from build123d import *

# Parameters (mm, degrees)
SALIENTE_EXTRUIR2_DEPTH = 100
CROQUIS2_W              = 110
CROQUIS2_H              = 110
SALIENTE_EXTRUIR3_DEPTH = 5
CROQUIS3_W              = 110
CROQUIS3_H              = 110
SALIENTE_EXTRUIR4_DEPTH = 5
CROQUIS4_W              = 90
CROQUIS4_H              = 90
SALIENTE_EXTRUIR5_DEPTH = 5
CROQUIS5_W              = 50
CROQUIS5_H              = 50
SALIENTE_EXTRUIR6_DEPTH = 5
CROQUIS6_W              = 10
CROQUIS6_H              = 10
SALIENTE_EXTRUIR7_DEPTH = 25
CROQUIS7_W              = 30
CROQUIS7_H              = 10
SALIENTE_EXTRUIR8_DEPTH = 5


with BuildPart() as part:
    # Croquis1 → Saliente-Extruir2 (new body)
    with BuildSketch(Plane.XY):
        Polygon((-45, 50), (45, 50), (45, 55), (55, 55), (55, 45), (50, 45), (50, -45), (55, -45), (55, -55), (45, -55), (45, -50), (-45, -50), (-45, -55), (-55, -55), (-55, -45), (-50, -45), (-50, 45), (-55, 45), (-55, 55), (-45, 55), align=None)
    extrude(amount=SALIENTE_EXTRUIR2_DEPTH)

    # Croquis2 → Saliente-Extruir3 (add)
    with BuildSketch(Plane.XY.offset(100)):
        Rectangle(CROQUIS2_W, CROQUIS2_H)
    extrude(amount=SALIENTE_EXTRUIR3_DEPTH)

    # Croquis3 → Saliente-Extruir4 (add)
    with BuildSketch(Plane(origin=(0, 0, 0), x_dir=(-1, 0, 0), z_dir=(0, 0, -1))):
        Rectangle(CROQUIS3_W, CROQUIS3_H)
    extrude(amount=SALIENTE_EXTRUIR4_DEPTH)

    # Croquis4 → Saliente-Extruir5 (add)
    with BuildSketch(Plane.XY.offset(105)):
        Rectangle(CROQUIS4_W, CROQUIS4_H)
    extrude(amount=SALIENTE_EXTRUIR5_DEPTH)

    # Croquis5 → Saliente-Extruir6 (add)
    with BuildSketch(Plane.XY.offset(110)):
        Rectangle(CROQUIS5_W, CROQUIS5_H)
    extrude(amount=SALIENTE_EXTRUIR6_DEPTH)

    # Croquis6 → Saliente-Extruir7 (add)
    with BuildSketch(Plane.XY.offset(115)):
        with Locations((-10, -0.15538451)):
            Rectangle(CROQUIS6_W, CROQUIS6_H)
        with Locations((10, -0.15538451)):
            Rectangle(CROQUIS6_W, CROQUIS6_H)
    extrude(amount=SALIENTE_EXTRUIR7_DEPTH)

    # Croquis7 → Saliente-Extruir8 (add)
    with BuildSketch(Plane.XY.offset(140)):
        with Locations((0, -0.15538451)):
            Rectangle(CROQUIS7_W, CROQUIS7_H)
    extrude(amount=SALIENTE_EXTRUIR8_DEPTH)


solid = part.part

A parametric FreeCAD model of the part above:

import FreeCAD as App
import Part
import Sketcher

V = App.Vector
Q = App.Units.Quantity

doc = App.newDocument("Part")
body = doc.addObject("PartDesign::Body", "Body")

# Sketch on XY plane
sketch1 = body.newObject("Sketcher::SketchObject", "Sketch")
sketch1.AttachmentSupport = (doc.getObject("XY_Plane"), [""])
sketch1.MapMode = "FlatFace"
sketch1.addGeometry(Part.LineSegment(V(45, 50, 0), V(-45, 50, 0)), False)
sketch1.addGeometry(Part.LineSegment(V(-45, 50, 0), V(-45, 55, 0)), False)
sketch1.addGeometry(Part.LineSegment(V(-45, 55, 0), V(-55, 55, 0)), False)
sketch1.addGeometry(Part.LineSegment(V(-55, 55, 0), V(-55, 45, 0)), False)
sketch1.addGeometry(Part.LineSegment(V(-55, 45, 0), V(-50, 45, 0)), False)
sketch1.addGeometry(Part.LineSegment(V(-50, 45, 0), V(-50, -45, 0)), False)
sketch1.addGeometry(Part.LineSegment(V(-50, -45, 0), V(-55, -45, 0)), False)
sketch1.addGeometry(Part.LineSegment(V(-55, -45, 0), V(-55, -55, 0)), False)
sketch1.addGeometry(Part.LineSegment(V(-55, -55, 0), V(-45, -55, 0)), False)
sketch1.addGeometry(Part.LineSegment(V(-45, -55, 0), V(-45, -50, 0)), False)
sketch1.addGeometry(Part.LineSegment(V(-45, -50, 0), V(45, -50, 0)), False)
sketch1.addGeometry(Part.LineSegment(V(45, -50, 0), V(45, -55, 0)), False)
sketch1.addGeometry(Part.LineSegment(V(45, -55, 0), V(55, -55, 0)), False)
sketch1.addGeometry(Part.LineSegment(V(55, -55, 0), V(55, -45, 0)), False)
sketch1.addGeometry(Part.LineSegment(V(55, -45, 0), V(50, -45, 0)), False)
sketch1.addGeometry(Part.LineSegment(V(50, -45, 0), V(50, 45, 0)), False)
sketch1.addGeometry(Part.LineSegment(V(50, 45, 0), V(55, 45, 0)), False)
sketch1.addGeometry(Part.LineSegment(V(55, 45, 0), V(55, 55, 0)), False)
sketch1.addGeometry(Part.LineSegment(V(55, 55, 0), V(45, 55, 0)), False)
sketch1.addGeometry(Part.LineSegment(V(45, 55, 0), V(45, 50, 0)), False)
sketch1.addConstraint(Sketcher.Constraint("Coincident", 0, 2, 1, 1))
sketch1.addConstraint(Sketcher.Constraint("Coincident", 1, 2, 2, 1))
sketch1.addConstraint(Sketcher.Constraint("Coincident", 2, 2, 3, 1))
sketch1.addConstraint(Sketcher.Constraint("Coincident", 3, 2, 4, 1))
sketch1.addConstraint(Sketcher.Constraint("Coincident", 4, 2, 5, 1))
sketch1.addConstraint(Sketcher.Constraint("Coincident", 5, 2, 6, 1))
sketch1.addConstraint(Sketcher.Constraint("Coincident", 6, 2, 7, 1))
sketch1.addConstraint(Sketcher.Constraint("Coincident", 7, 2, 8, 1))
sketch1.addConstraint(Sketcher.Constraint("Coincident", 8, 2, 9, 1))
sketch1.addConstraint(Sketcher.Constraint("Coincident", 9, 2, 10, 1))
sketch1.addConstraint(Sketcher.Constraint("Coincident", 10, 2, 11, 1))
sketch1.addConstraint(Sketcher.Constraint("Coincident", 11, 2, 12, 1))
sketch1.addConstraint(Sketcher.Constraint("Coincident", 12, 2, 13, 1))
sketch1.addConstraint(Sketcher.Constraint("Coincident", 13, 2, 14, 1))
sketch1.addConstraint(Sketcher.Constraint("Coincident", 14, 2, 15, 1))
sketch1.addConstraint(Sketcher.Constraint("Coincident", 15, 2, 16, 1))
sketch1.addConstraint(Sketcher.Constraint("Coincident", 16, 2, 17, 1))
sketch1.addConstraint(Sketcher.Constraint("Coincident", 17, 2, 18, 1))
sketch1.addConstraint(Sketcher.Constraint("Coincident", 18, 2, 19, 1))
sketch1.addConstraint(Sketcher.Constraint("Coincident", 19, 2, 0, 1))
sketch1.addConstraint(Sketcher.Constraint("Horizontal", 0))
sketch1.addConstraint(Sketcher.Constraint("Vertical", 1))
sketch1.addConstraint(Sketcher.Constraint("Horizontal", 2))
sketch1.addConstraint(Sketcher.Constraint("Vertical", 3))
sketch1.addConstraint(Sketcher.Constraint("Horizontal", 4))
sketch1.addConstraint(Sketcher.Constraint("Vertical", 5))
sketch1.addConstraint(Sketcher.Constraint("Horizontal", 6))
sketch1.addConstraint(Sketcher.Constraint("Vertical", 7))
sketch1.addConstraint(Sketcher.Constraint("Horizontal", 8))
sketch1.addConstraint(Sketcher.Constraint("Vertical", 9))
sketch1.addConstraint(Sketcher.Constraint("Horizontal", 10))
sketch1.addConstraint(Sketcher.Constraint("Vertical", 11))
sketch1.addConstraint(Sketcher.Constraint("Horizontal", 12))
sketch1.addConstraint(Sketcher.Constraint("Vertical", 13))
sketch1.addConstraint(Sketcher.Constraint("Horizontal", 14))
sketch1.addConstraint(Sketcher.Constraint("Vertical", 15))
sketch1.addConstraint(Sketcher.Constraint("Horizontal", 16))
sketch1.addConstraint(Sketcher.Constraint("Vertical", 17))
sketch1.addConstraint(Sketcher.Constraint("Horizontal", 18))
sketch1.addConstraint(Sketcher.Constraint("Vertical", 19))
sketch1.addConstraint(Sketcher.Constraint("Symmetric", 0, 2, 10, 2, -1, 1))
sketch1.addConstraint(Sketcher.Constraint("Symmetric", 2, 2, 12, 2, -1, 1))
sketch1.addConstraint(Sketcher.Constraint("Symmetric", 4, 2, 14, 2, -1, 1))
sketch1.addConstraint(Sketcher.Constraint("Symmetric", 6, 2, 16, 2, -1, 1))
sketch1.addConstraint(Sketcher.Constraint("Symmetric", 8, 2, 18, 2, -1, 1))
sketch1.addConstraint(Sketcher.Constraint("Symmetric", 8, 2, 11, 2, -2))
sketch1.addConstraint(Sketcher.Constraint("Symmetric", 6, 2, 13, 2, -2))
sketch1.addConstraint(Sketcher.Constraint("Equal", 16, 1))
sketch1.addConstraint(Sketcher.Constraint("Equal", 18, 3))
sketch1.addConstraint(Sketcher.Constraint("Equal", 10, 5))
sketch1.addConstraint(Sketcher.Constraint("DistanceX", 0, 2, 0, 1, Q("90 mm")))
sketch1.addConstraint(Sketcher.Constraint("DistanceX", 2, 2, 2, 1, Q("10 mm")))
sketch1.addConstraint(Sketcher.Constraint("DistanceX", 4, 1, 4, 2, Q("5 mm")))
pad1 = body.newObject("PartDesign::Pad", "Pad")
pad1.Profile = sketch1
pad1.Length = 100

# Sketch on XY plane
sketch2 = body.newObject("Sketcher::SketchObject", "Sketch001")
sketch2.AttachmentSupport = (doc.getObject("XY_Plane"), [""])
sketch2.MapMode = "FlatFace"
sketch2.AttachmentOffset = App.Placement(V(0, 0, 100), App.Rotation())
sketch2.addGeometry(Part.LineSegment(V(-55, 55, 0), V(-55, -55, 0)), False)
sketch2.addGeometry(Part.LineSegment(V(-55, -55, 0), V(55, -55, 0)), False)
sketch2.addGeometry(Part.LineSegment(V(55, -55, 0), V(55, 55, 0)), False)
sketch2.addGeometry(Part.LineSegment(V(55, 55, 0), V(-55, 55, 0)), False)
sketch2.addConstraint(Sketcher.Constraint("Coincident", 0, 2, 1, 1))
sketch2.addConstraint(Sketcher.Constraint("Coincident", 1, 2, 2, 1))
sketch2.addConstraint(Sketcher.Constraint("Coincident", 2, 2, 3, 1))
sketch2.addConstraint(Sketcher.Constraint("Coincident", 3, 2, 0, 1))
sketch2.addConstraint(Sketcher.Constraint("Vertical", 0))
sketch2.addConstraint(Sketcher.Constraint("Horizontal", 1))
sketch2.addConstraint(Sketcher.Constraint("Vertical", 2))
sketch2.addConstraint(Sketcher.Constraint("Horizontal", 3))
sketch2.addConstraint(Sketcher.Constraint("Symmetric", 0, 2, 2, 2, -1, 1))
sketch2.addConstraint(Sketcher.Constraint("Equal", 3, 0))
sketch2.addConstraint(Sketcher.Constraint("DistanceX", 1, 1, 1, 2, Q("110 mm")))
pad2 = body.newObject("PartDesign::Pad", "Pad001")
pad2.Profile = sketch2
pad2.Length = 5

# Sketch on XY plane
sketch3 = body.newObject("Sketcher::SketchObject", "Sketch002")
sketch3.AttachmentSupport = (doc.getObject("XY_Plane"), [""])
sketch3.MapMode = "FlatFace"
sketch3.addGeometry(Part.LineSegment(V(55, 55, 0), V(55, -55, 0)), False)
sketch3.addGeometry(Part.LineSegment(V(55, -55, 0), V(-55, -55, 0)), False)
sketch3.addGeometry(Part.LineSegment(V(-55, -55, 0), V(-55, 55, 0)), False)
sketch3.addGeometry(Part.LineSegment(V(-55, 55, 0), V(55, 55, 0)), False)
sketch3.addConstraint(Sketcher.Constraint("Coincident", 0, 2, 1, 1))
sketch3.addConstraint(Sketcher.Constraint("Coincident", 1, 2, 2, 1))
sketch3.addConstraint(Sketcher.Constraint("Coincident", 2, 2, 3, 1))
sketch3.addConstraint(Sketcher.Constraint("Coincident", 3, 2, 0, 1))
sketch3.addConstraint(Sketcher.Constraint("Vertical", 0))
sketch3.addConstraint(Sketcher.Constraint("Horizontal", 1))
sketch3.addConstraint(Sketcher.Constraint("Vertical", 2))
sketch3.addConstraint(Sketcher.Constraint("Horizontal", 3))
sketch3.addConstraint(Sketcher.Constraint("Symmetric", 0, 2, 2, 2, -1, 1))
sketch3.addConstraint(Sketcher.Constraint("Equal", 3, 0))
sketch3.addConstraint(Sketcher.Constraint("DistanceX", 1, 2, 1, 1, Q("110 mm")))
pad3 = body.newObject("PartDesign::Pad", "Pad002")
pad3.Profile = sketch3
pad3.Length = 5
pad3.Reversed = True

# Sketch on XY plane
sketch4 = body.newObject("Sketcher::SketchObject", "Sketch003")
sketch4.AttachmentSupport = (doc.getObject("XY_Plane"), [""])
sketch4.MapMode = "FlatFace"
sketch4.AttachmentOffset = App.Placement(V(0, 0, 105), App.Rotation())
sketch4.addGeometry(Part.LineSegment(V(-45, 45, 0), V(-45, -45, 0)), False)
sketch4.addGeometry(Part.LineSegment(V(-45, -45, 0), V(45, -45, 0)), False)
sketch4.addGeometry(Part.LineSegment(V(45, -45, 0), V(45, 45, 0)), False)
sketch4.addGeometry(Part.LineSegment(V(45, 45, 0), V(-45, 45, 0)), False)
sketch4.addConstraint(Sketcher.Constraint("Coincident", 0, 2, 1, 1))
sketch4.addConstraint(Sketcher.Constraint("Coincident", 1, 2, 2, 1))
sketch4.addConstraint(Sketcher.Constraint("Coincident", 2, 2, 3, 1))
sketch4.addConstraint(Sketcher.Constraint("Coincident", 3, 2, 0, 1))
sketch4.addConstraint(Sketcher.Constraint("Vertical", 0))
sketch4.addConstraint(Sketcher.Constraint("Horizontal", 1))
sketch4.addConstraint(Sketcher.Constraint("Vertical", 2))
sketch4.addConstraint(Sketcher.Constraint("Horizontal", 3))
sketch4.addConstraint(Sketcher.Constraint("Symmetric", 0, 2, 2, 2, -1, 1))
sketch4.addConstraint(Sketcher.Constraint("Equal", 3, 0))
sketch4.addConstraint(Sketcher.Constraint("DistanceX", 1, 1, 1, 2, Q("90 mm")))
pad4 = body.newObject("PartDesign::Pad", "Pad003")
pad4.Profile = sketch4
pad4.Length = 5

# Sketch on XY plane
sketch5 = body.newObject("Sketcher::SketchObject", "Sketch004")
sketch5.AttachmentSupport = (doc.getObject("XY_Plane"), [""])
sketch5.MapMode = "FlatFace"
sketch5.AttachmentOffset = App.Placement(V(0, 0, 110), App.Rotation())
sketch5.addGeometry(Part.LineSegment(V(-25, 25, 0), V(-25, -25, 0)), False)
sketch5.addGeometry(Part.LineSegment(V(-25, -25, 0), V(25, -25, 0)), False)
sketch5.addGeometry(Part.LineSegment(V(25, -25, 0), V(25, 25, 0)), False)
sketch5.addGeometry(Part.LineSegment(V(25, 25, 0), V(-25, 25, 0)), False)
sketch5.addConstraint(Sketcher.Constraint("Coincident", 0, 2, 1, 1))
sketch5.addConstraint(Sketcher.Constraint("Coincident", 1, 2, 2, 1))
sketch5.addConstraint(Sketcher.Constraint("Coincident", 2, 2, 3, 1))
sketch5.addConstraint(Sketcher.Constraint("Coincident", 3, 2, 0, 1))
sketch5.addConstraint(Sketcher.Constraint("Vertical", 0))
sketch5.addConstraint(Sketcher.Constraint("Horizontal", 1))
sketch5.addConstraint(Sketcher.Constraint("Vertical", 2))
sketch5.addConstraint(Sketcher.Constraint("Horizontal", 3))
sketch5.addConstraint(Sketcher.Constraint("Symmetric", 0, 2, 2, 2, -1, 1))
sketch5.addConstraint(Sketcher.Constraint("Equal", 3, 0))
sketch5.addConstraint(Sketcher.Constraint("DistanceX", 1, 1, 1, 2, Q("50 mm")))
pad5 = body.newObject("PartDesign::Pad", "Pad004")
pad5.Profile = sketch5
pad5.Length = 5

# Sketch on XY plane
sketch6 = body.newObject("Sketcher::SketchObject", "Sketch005")
sketch6.AttachmentSupport = (doc.getObject("XY_Plane"), [""])
sketch6.MapMode = "FlatFace"
sketch6.AttachmentOffset = App.Placement(V(0, 0, 115), App.Rotation())
sketch6.addGeometry(Part.LineSegment(V(-15, 5, 0), V(-15, -5, 0)), False)
sketch6.addGeometry(Part.LineSegment(V(-15, -5, 0), V(-5, -5, 0)), False)
sketch6.addGeometry(Part.LineSegment(V(-5, -5, 0), V(-5, 5, 0)), False)
sketch6.addGeometry(Part.LineSegment(V(-5, 5, 0), V(-15, 5, 0)), False)
sketch6.addGeometry(Part.LineSegment(V(5, 5, 0), V(5, -5, 0)), False)
sketch6.addGeometry(Part.LineSegment(V(5, -5, 0), V(15, -5, 0)), False)
sketch6.addGeometry(Part.LineSegment(V(15, -5, 0), V(15, 5, 0)), False)
sketch6.addGeometry(Part.LineSegment(V(15, 5, 0), V(5, 5, 0)), False)
sketch6.addConstraint(Sketcher.Constraint("Coincident", 0, 2, 1, 1))
sketch6.addConstraint(Sketcher.Constraint("Coincident", 1, 2, 2, 1))
sketch6.addConstraint(Sketcher.Constraint("Coincident", 2, 2, 3, 1))
sketch6.addConstraint(Sketcher.Constraint("Coincident", 3, 2, 0, 1))
sketch6.addConstraint(Sketcher.Constraint("Coincident", 4, 2, 5, 1))
sketch6.addConstraint(Sketcher.Constraint("Coincident", 5, 2, 6, 1))
sketch6.addConstraint(Sketcher.Constraint("Coincident", 6, 2, 7, 1))
sketch6.addConstraint(Sketcher.Constraint("Coincident", 7, 2, 4, 1))
sketch6.addConstraint(Sketcher.Constraint("Vertical", 0))
sketch6.addConstraint(Sketcher.Constraint("Horizontal", 1))
sketch6.addConstraint(Sketcher.Constraint("Vertical", 2))
sketch6.addConstraint(Sketcher.Constraint("Horizontal", 3))
sketch6.addConstraint(Sketcher.Constraint("Vertical", 4))
sketch6.addConstraint(Sketcher.Constraint("Horizontal", 5))
sketch6.addConstraint(Sketcher.Constraint("Vertical", 6))
sketch6.addConstraint(Sketcher.Constraint("Horizontal", 7))
sketch6.addConstraint(Sketcher.Constraint("Symmetric", 1, 2, 4, 2, -2))
sketch6.addConstraint(Sketcher.Constraint("Symmetric", 3, 2, 6, 2, -2))
sketch6.addConstraint(Sketcher.Constraint("Equal", 7, 0))
sketch6.addConstraint(Sketcher.Constraint("DistanceX", 1, 1, 1, 2, Q("10 mm")))
sketch6.addConstraint(Sketcher.Constraint("DistanceX", 0, 2, -1, 1, Q("15 mm")))
sketch6.addConstraint(Sketcher.Constraint("DistanceY", 0, 2, -1, 1, Q("5.155385 mm")))
pad6 = body.newObject("PartDesign::Pad", "Pad005")
pad6.Profile = sketch6
pad6.Length = 25

# Sketch on XY plane
sketch7 = body.newObject("Sketcher::SketchObject", "Sketch006")
sketch7.AttachmentSupport = (doc.getObject("XY_Plane"), [""])
sketch7.MapMode = "FlatFace"
sketch7.AttachmentOffset = App.Placement(V(0, 0, 140), App.Rotation())
sketch7.addGeometry(Part.LineSegment(V(-15, 5, 0), V(-15, -5, 0)), False)
sketch7.addGeometry(Part.LineSegment(V(-15, -5, 0), V(15, -5, 0)), False)
sketch7.addGeometry(Part.LineSegment(V(15, -5, 0), V(15, 5, 0)), False)
sketch7.addGeometry(Part.LineSegment(V(15, 5, 0), V(-15, 5, 0)), False)
sketch7.addConstraint(Sketcher.Constraint("Coincident", 0, 2, 1, 1))
sketch7.addConstraint(Sketcher.Constraint("Coincident", 1, 2, 2, 1))
sketch7.addConstraint(Sketcher.Constraint("Coincident", 2, 2, 3, 1))
sketch7.addConstraint(Sketcher.Constraint("Coincident", 3, 2, 0, 1))
sketch7.addConstraint(Sketcher.Constraint("Vertical", 0))
sketch7.addConstraint(Sketcher.Constraint("Horizontal", 1))
sketch7.addConstraint(Sketcher.Constraint("Vertical", 2))
sketch7.addConstraint(Sketcher.Constraint("Horizontal", 3))
sketch7.addConstraint(Sketcher.Constraint("DistanceX", 1, 1, 1, 2, Q("30 mm")))
sketch7.addConstraint(Sketcher.Constraint("DistanceY", 0, 2, 0, 1, Q("10 mm")))
sketch7.addConstraint(Sketcher.Constraint("DistanceX", 0, 2, -1, 1, Q("15 mm")))
sketch7.addConstraint(Sketcher.Constraint("DistanceY", 0, 2, -1, 1, Q("5.155385 mm")))
pad7 = body.newObject("PartDesign::Pad", "Pad006")
pad7.Profile = sketch7
pad7.Length = 5

doc.recompute()
